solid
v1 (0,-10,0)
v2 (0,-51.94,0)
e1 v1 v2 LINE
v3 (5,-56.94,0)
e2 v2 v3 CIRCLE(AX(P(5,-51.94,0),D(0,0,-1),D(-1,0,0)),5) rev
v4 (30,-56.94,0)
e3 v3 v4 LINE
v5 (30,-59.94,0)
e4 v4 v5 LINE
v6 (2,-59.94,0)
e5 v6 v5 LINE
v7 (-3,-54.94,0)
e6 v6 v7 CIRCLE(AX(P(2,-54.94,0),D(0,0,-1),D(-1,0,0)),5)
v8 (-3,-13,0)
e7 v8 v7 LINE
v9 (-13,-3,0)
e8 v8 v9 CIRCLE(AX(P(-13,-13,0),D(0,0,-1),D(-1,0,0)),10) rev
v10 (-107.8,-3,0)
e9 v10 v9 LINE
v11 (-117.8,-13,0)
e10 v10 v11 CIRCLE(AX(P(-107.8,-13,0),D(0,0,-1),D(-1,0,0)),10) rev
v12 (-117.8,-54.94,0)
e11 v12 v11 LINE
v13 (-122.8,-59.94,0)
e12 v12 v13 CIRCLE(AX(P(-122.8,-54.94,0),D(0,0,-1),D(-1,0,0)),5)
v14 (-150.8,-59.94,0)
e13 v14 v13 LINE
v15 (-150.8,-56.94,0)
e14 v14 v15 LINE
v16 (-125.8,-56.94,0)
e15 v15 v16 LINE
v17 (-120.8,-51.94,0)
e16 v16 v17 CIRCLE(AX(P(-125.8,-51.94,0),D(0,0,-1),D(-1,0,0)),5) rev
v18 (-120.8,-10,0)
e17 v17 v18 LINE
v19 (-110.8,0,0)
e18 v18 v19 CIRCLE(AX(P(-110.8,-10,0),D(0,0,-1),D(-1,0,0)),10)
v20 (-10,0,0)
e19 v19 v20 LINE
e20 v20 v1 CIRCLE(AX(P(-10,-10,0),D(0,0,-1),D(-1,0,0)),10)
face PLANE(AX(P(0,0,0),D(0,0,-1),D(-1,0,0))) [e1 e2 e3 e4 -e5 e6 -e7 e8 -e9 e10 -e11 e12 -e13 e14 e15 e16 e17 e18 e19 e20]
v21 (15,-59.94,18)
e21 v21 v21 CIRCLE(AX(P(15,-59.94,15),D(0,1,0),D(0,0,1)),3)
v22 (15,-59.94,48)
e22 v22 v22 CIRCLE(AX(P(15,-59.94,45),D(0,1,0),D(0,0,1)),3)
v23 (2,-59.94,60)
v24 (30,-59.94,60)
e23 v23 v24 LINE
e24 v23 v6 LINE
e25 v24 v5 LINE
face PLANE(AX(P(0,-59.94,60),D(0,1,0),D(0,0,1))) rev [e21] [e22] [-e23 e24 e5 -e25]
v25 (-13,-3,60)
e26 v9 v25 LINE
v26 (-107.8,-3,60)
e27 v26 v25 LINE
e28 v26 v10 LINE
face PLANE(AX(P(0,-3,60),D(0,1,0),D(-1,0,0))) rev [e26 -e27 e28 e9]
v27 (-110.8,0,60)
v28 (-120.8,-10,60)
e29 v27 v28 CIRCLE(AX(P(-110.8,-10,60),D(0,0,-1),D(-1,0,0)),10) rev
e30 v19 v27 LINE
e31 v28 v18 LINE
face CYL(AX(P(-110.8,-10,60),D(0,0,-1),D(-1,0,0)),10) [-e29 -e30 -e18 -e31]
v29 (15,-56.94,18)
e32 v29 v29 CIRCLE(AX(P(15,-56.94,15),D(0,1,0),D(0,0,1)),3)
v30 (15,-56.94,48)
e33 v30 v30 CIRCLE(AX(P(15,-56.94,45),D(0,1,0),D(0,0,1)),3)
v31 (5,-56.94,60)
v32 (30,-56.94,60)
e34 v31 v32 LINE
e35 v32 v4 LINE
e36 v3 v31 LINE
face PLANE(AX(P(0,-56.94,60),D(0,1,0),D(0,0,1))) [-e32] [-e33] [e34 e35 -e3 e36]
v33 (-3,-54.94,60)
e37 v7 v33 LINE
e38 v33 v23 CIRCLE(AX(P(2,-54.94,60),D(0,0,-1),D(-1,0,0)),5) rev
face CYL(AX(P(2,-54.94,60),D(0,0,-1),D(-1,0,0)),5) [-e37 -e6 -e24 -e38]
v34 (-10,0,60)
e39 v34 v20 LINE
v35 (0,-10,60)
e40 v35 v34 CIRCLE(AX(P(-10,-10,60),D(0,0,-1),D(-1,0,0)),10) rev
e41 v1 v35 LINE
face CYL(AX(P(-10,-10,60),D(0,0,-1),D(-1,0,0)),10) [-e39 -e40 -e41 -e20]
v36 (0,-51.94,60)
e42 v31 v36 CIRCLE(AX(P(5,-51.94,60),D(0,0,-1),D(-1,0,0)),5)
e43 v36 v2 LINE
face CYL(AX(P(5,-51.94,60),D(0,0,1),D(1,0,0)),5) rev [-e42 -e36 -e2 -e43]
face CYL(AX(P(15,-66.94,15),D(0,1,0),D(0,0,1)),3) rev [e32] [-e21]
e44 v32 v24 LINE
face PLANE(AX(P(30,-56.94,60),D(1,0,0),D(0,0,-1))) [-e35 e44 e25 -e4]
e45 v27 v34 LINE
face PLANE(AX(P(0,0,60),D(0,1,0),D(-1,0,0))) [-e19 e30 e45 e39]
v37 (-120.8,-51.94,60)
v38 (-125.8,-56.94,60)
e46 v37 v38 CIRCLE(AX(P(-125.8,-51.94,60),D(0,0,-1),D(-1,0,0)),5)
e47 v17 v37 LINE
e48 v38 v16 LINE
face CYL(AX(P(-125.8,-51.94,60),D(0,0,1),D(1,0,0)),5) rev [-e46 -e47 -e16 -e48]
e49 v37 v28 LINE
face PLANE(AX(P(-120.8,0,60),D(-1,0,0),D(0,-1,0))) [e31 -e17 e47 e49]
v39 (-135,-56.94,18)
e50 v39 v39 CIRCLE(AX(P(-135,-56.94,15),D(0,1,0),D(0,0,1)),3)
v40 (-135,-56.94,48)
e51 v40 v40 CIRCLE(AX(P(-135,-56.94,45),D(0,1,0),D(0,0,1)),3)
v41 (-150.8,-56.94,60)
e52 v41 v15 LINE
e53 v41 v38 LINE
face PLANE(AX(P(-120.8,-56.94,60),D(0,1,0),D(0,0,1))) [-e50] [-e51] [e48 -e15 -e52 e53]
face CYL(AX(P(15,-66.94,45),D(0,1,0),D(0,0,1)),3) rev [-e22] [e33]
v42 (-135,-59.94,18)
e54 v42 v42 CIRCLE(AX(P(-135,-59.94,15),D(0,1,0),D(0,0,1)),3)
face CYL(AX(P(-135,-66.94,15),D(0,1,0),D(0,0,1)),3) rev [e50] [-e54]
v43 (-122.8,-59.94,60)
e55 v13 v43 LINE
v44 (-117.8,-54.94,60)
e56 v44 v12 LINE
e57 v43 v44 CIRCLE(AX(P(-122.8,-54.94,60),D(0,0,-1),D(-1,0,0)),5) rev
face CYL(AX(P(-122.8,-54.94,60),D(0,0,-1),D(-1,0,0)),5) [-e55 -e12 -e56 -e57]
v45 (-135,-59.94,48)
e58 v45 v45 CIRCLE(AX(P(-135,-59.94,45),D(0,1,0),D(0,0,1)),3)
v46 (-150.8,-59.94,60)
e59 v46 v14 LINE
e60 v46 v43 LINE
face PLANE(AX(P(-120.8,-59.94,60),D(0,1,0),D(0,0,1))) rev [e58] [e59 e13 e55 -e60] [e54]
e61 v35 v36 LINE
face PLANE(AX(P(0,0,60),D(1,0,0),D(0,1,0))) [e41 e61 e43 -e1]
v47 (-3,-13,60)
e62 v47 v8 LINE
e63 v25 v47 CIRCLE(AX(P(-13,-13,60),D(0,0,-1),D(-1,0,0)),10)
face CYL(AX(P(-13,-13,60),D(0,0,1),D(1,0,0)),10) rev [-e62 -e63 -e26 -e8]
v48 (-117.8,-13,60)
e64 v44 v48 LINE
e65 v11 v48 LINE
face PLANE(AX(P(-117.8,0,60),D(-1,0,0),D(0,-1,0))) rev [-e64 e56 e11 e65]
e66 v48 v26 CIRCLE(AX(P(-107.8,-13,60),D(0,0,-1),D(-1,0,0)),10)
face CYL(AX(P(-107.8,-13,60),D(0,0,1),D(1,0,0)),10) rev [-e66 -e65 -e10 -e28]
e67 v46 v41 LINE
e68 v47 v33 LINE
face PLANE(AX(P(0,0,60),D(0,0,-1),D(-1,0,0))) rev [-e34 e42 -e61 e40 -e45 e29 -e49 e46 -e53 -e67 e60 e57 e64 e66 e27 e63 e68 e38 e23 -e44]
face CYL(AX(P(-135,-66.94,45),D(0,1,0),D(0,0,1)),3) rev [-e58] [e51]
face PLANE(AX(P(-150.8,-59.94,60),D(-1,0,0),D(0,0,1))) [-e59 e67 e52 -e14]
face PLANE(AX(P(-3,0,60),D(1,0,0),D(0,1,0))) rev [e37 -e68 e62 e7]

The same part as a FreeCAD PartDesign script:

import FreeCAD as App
import Part
import Sketcher
from FreeCAD import Vector


def edges_at(feature, points):
    """Names of the edges that pass closest to the given points."""
    edges = feature.Shape.Edges
    near = lambda p: min(range(len(edges)), key=lambda i: edges[i].distToShape(Part.Vertex(*p))[0])
    return sorted({f"Edge{near(p) + 1}" for p in points})


def add_polygon(sketch, points):
    """Adds a closed chain of lines whose ends are joined by coincident constraints."""
    first, n = sketch.GeometryCount, len(points)
    for a, b in zip(points, points[1:] + points[:1]):
        sketch.addGeometry(Part.LineSegment(App.Vector(*a, 0), App.Vector(*b, 0)), False)
    for i in range(n):
        sketch.addConstraint(Sketcher.Constraint("Coincident", first + i, 2, first + (i + 1) % n, 1))

doc = App.newDocument("Part")
body = doc.addObject("PartDesign::Body", "Body")

# Sketch on XY plane
sketch1 = body.newObject("Sketcher::SketchObject", "Sketch")
sketch1.AttachmentSupport = (doc.getObject("XY_Plane"), [""])
sketch1.MapMode = "FlatFace"
add_polygon(sketch1, [(30, -56.94), (0, -56.94), (0, 0), (-120.8, 0), (-120.8, -56.94), (-150.8, -56.94), (-150.8, -59.94), (-117.8, -59.94), (-117.8, -3), (-3, -3), (-3, -59.94), (30, -59.94)])  # lines 0-11
sketch1.addConstraint(Sketcher.Constraint("Horizontal", 0))
sketch1.addConstraint(Sketcher.Constraint("Vertical", 1))
sketch1.addConstraint(Sketcher.Constraint("Horizontal", 2))
sketch1.addConstraint(Sketcher.Constraint("Vertical", 3))
sketch1.addConstraint(Sketcher.Constraint("Horizontal", 4))
sketch1.addConstraint(Sketcher.Constraint("Vertical", 5))
sketch1.addConstraint(Sketcher.Constraint("Horizontal", 6))
sketch1.addConstraint(Sketcher.Constraint("Vertical", 7))
sketch1.addConstraint(Sketcher.Constraint("Horizontal", 8))
sketch1.addConstraint(Sketcher.Constraint("Vertical", 9))
sketch1.addConstraint(Sketcher.Constraint("Horizontal", 10))
sketch1.addConstraint(Sketcher.Constraint("Vertical", 11))
sketch1.addConstraint(Sketcher.Constraint("Coincident", 1, 2, -1, 1))
sketch1.addConstraint(Sketcher.Constraint("Horizontal", 0, 2, 3, 2))
sketch1.addConstraint(Sketcher.Constraint("Horizontal", 6, 2, 9, 2))
sketch1.addConstraint(Sketcher.Constraint("Equal", 0, 4))
sketch1.addConstraint(Sketcher.Constraint("Equal", 6, 10))
sketch1.addConstraint(Sketcher.Constraint("Equal", 3, 7))
sketch1.addConstraint(Sketcher.Constraint("DistanceX", 0, 2, 0, 1, 30.0))
sketch1.addConstraint(Sketcher.Constraint("DistanceX", 6, 1, 6, 2, 33.0))
sketch1.addConstraint(Sketcher.Constraint("DistanceY", 5, 2, 5, 1, 3.0))
sketch1.addConstraint(Sketcher.Constraint("DistanceX", 2, 2, 2, 1, 120.8))
sketch1.addConstraint(Sketcher.Constraint("DistanceY", 1, 1, 1, 2, 56.94))
pad1 = body.newObject("PartDesign::Pad", "Pad")
pad1.Profile = sketch1
pad1.Length = 60

# Sketch on XZ plane
sketch2 = body.newObject("Sketcher::SketchObject", "Sketch001")
sketch2.AttachmentSupport = (doc.getObject("XZ_Plane"), [""])
sketch2.MapMode = "FlatFace"
sketch2.AttachmentOffset = App.Placement(Vector(0, 0, 56.94), App.Rotation())
sketch2.addGeometry(Part.Circle(Vector(15, 15, 0), Vector(0, 0, 1), 3), False)
sketch2.addConstraint(Sketcher.Constraint("Diameter", 0, 6.0))
sketch2.addConstraint(Sketcher.Constraint("DistanceX", -1, 1, 0, 3, 15.0))
sketch2.addConstraint(Sketcher.Constraint("DistanceY", -1, 1, 0, 3, 15.0))
pocket1 = body.newObject("PartDesign::Pocket", "Pocket")
pocket1.Profile = sketch2
pocket1.Length = 10
pocket1.Reversed = True
doc.recompute()

linearpattern = body.newObject("PartDesign::LinearPattern", "LinearPattern")
linearpattern.Originals = [pocket1]
linearpattern.Direction = (doc.getObject("Z_Axis"), [""])
linearpattern.Mode = "offset"
linearpattern.Offset = 30
linearpattern.Occurrences = 2
body.Tip = linearpattern
doc.recompute()

linearpattern2 = body.newObject("PartDesign::LinearPattern", "LinearPattern001")
linearpattern2.Originals = [pocket1]
linearpattern2.Direction = (doc.getObject("X_Axis"), [""])
linearpattern2.Mode = "offset"
linearpattern2.Offset = 150
linearpattern2.Occurrences = 2
linearpattern2.Reversed = True
body.Tip = linearpattern2

# Sketch on XZ plane
sketch3 = body.newObject("Sketcher::SketchObject", "Sketch002")
sketch3.AttachmentSupport = (doc.getObject("XZ_Plane"), [""])
sketch3.MapMode = "FlatFace"
sketch3.AttachmentOffset = App.Placement(Vector(0, 0, 56.94), App.Rotation())
sketch3.addGeometry(Part.Circle(Vector(-135, 45, 0), Vector(0, 0, 1), 3), False)
sketch3.addConstraint(Sketcher.Constraint("Diameter", 0, 6.0))
sketch3.addConstraint(Sketcher.Constraint("DistanceX", 0, 3, -1, 1, 135.0))
sketch3.addConstraint(Sketcher.Constraint("DistanceY", -1, 1, 0, 3, 45.0))
pocket2 = body.newObject("PartDesign::Pocket", "Pocket001")
pocket2.Profile = sketch3
pocket2.Length = 10
pocket2.Reversed = True
doc.recompute()

fillet = body.newObject("PartDesign::Fillet", "Fillet")
fillet.Base = (pocket2, edges_at(pocket2, [(-120.8, 0, 30), (0, 0, 30)]))
fillet.Radius = 10
doc.recompute()

fillet2 = body.newObject("PartDesign::Fillet", "Fillet001")
fillet2.Base = (fillet, edges_at(fillet, [(-3, -3, 30), (-117.8, -3, 30)]))
fillet2.Radius = 10
doc.recompute()

fillet3 = body.newObject("PartDesign::Fillet", "Fillet002")
fillet3.Base = (fillet2, edges_at(fillet2, [(-120.8, -56.94, 30), (0, -56.94, 30)]))
fillet3.Radius = 5
doc.recompute()

fillet4 = body.newObject("PartDesign::Fillet", "Fillet003")
fillet4.Base = (fillet3, edges_at(fillet3, [(-3, -59.94, 30), (-117.8, -59.94, 30)]))
fillet4.Radius = 5

doc.recompute()
